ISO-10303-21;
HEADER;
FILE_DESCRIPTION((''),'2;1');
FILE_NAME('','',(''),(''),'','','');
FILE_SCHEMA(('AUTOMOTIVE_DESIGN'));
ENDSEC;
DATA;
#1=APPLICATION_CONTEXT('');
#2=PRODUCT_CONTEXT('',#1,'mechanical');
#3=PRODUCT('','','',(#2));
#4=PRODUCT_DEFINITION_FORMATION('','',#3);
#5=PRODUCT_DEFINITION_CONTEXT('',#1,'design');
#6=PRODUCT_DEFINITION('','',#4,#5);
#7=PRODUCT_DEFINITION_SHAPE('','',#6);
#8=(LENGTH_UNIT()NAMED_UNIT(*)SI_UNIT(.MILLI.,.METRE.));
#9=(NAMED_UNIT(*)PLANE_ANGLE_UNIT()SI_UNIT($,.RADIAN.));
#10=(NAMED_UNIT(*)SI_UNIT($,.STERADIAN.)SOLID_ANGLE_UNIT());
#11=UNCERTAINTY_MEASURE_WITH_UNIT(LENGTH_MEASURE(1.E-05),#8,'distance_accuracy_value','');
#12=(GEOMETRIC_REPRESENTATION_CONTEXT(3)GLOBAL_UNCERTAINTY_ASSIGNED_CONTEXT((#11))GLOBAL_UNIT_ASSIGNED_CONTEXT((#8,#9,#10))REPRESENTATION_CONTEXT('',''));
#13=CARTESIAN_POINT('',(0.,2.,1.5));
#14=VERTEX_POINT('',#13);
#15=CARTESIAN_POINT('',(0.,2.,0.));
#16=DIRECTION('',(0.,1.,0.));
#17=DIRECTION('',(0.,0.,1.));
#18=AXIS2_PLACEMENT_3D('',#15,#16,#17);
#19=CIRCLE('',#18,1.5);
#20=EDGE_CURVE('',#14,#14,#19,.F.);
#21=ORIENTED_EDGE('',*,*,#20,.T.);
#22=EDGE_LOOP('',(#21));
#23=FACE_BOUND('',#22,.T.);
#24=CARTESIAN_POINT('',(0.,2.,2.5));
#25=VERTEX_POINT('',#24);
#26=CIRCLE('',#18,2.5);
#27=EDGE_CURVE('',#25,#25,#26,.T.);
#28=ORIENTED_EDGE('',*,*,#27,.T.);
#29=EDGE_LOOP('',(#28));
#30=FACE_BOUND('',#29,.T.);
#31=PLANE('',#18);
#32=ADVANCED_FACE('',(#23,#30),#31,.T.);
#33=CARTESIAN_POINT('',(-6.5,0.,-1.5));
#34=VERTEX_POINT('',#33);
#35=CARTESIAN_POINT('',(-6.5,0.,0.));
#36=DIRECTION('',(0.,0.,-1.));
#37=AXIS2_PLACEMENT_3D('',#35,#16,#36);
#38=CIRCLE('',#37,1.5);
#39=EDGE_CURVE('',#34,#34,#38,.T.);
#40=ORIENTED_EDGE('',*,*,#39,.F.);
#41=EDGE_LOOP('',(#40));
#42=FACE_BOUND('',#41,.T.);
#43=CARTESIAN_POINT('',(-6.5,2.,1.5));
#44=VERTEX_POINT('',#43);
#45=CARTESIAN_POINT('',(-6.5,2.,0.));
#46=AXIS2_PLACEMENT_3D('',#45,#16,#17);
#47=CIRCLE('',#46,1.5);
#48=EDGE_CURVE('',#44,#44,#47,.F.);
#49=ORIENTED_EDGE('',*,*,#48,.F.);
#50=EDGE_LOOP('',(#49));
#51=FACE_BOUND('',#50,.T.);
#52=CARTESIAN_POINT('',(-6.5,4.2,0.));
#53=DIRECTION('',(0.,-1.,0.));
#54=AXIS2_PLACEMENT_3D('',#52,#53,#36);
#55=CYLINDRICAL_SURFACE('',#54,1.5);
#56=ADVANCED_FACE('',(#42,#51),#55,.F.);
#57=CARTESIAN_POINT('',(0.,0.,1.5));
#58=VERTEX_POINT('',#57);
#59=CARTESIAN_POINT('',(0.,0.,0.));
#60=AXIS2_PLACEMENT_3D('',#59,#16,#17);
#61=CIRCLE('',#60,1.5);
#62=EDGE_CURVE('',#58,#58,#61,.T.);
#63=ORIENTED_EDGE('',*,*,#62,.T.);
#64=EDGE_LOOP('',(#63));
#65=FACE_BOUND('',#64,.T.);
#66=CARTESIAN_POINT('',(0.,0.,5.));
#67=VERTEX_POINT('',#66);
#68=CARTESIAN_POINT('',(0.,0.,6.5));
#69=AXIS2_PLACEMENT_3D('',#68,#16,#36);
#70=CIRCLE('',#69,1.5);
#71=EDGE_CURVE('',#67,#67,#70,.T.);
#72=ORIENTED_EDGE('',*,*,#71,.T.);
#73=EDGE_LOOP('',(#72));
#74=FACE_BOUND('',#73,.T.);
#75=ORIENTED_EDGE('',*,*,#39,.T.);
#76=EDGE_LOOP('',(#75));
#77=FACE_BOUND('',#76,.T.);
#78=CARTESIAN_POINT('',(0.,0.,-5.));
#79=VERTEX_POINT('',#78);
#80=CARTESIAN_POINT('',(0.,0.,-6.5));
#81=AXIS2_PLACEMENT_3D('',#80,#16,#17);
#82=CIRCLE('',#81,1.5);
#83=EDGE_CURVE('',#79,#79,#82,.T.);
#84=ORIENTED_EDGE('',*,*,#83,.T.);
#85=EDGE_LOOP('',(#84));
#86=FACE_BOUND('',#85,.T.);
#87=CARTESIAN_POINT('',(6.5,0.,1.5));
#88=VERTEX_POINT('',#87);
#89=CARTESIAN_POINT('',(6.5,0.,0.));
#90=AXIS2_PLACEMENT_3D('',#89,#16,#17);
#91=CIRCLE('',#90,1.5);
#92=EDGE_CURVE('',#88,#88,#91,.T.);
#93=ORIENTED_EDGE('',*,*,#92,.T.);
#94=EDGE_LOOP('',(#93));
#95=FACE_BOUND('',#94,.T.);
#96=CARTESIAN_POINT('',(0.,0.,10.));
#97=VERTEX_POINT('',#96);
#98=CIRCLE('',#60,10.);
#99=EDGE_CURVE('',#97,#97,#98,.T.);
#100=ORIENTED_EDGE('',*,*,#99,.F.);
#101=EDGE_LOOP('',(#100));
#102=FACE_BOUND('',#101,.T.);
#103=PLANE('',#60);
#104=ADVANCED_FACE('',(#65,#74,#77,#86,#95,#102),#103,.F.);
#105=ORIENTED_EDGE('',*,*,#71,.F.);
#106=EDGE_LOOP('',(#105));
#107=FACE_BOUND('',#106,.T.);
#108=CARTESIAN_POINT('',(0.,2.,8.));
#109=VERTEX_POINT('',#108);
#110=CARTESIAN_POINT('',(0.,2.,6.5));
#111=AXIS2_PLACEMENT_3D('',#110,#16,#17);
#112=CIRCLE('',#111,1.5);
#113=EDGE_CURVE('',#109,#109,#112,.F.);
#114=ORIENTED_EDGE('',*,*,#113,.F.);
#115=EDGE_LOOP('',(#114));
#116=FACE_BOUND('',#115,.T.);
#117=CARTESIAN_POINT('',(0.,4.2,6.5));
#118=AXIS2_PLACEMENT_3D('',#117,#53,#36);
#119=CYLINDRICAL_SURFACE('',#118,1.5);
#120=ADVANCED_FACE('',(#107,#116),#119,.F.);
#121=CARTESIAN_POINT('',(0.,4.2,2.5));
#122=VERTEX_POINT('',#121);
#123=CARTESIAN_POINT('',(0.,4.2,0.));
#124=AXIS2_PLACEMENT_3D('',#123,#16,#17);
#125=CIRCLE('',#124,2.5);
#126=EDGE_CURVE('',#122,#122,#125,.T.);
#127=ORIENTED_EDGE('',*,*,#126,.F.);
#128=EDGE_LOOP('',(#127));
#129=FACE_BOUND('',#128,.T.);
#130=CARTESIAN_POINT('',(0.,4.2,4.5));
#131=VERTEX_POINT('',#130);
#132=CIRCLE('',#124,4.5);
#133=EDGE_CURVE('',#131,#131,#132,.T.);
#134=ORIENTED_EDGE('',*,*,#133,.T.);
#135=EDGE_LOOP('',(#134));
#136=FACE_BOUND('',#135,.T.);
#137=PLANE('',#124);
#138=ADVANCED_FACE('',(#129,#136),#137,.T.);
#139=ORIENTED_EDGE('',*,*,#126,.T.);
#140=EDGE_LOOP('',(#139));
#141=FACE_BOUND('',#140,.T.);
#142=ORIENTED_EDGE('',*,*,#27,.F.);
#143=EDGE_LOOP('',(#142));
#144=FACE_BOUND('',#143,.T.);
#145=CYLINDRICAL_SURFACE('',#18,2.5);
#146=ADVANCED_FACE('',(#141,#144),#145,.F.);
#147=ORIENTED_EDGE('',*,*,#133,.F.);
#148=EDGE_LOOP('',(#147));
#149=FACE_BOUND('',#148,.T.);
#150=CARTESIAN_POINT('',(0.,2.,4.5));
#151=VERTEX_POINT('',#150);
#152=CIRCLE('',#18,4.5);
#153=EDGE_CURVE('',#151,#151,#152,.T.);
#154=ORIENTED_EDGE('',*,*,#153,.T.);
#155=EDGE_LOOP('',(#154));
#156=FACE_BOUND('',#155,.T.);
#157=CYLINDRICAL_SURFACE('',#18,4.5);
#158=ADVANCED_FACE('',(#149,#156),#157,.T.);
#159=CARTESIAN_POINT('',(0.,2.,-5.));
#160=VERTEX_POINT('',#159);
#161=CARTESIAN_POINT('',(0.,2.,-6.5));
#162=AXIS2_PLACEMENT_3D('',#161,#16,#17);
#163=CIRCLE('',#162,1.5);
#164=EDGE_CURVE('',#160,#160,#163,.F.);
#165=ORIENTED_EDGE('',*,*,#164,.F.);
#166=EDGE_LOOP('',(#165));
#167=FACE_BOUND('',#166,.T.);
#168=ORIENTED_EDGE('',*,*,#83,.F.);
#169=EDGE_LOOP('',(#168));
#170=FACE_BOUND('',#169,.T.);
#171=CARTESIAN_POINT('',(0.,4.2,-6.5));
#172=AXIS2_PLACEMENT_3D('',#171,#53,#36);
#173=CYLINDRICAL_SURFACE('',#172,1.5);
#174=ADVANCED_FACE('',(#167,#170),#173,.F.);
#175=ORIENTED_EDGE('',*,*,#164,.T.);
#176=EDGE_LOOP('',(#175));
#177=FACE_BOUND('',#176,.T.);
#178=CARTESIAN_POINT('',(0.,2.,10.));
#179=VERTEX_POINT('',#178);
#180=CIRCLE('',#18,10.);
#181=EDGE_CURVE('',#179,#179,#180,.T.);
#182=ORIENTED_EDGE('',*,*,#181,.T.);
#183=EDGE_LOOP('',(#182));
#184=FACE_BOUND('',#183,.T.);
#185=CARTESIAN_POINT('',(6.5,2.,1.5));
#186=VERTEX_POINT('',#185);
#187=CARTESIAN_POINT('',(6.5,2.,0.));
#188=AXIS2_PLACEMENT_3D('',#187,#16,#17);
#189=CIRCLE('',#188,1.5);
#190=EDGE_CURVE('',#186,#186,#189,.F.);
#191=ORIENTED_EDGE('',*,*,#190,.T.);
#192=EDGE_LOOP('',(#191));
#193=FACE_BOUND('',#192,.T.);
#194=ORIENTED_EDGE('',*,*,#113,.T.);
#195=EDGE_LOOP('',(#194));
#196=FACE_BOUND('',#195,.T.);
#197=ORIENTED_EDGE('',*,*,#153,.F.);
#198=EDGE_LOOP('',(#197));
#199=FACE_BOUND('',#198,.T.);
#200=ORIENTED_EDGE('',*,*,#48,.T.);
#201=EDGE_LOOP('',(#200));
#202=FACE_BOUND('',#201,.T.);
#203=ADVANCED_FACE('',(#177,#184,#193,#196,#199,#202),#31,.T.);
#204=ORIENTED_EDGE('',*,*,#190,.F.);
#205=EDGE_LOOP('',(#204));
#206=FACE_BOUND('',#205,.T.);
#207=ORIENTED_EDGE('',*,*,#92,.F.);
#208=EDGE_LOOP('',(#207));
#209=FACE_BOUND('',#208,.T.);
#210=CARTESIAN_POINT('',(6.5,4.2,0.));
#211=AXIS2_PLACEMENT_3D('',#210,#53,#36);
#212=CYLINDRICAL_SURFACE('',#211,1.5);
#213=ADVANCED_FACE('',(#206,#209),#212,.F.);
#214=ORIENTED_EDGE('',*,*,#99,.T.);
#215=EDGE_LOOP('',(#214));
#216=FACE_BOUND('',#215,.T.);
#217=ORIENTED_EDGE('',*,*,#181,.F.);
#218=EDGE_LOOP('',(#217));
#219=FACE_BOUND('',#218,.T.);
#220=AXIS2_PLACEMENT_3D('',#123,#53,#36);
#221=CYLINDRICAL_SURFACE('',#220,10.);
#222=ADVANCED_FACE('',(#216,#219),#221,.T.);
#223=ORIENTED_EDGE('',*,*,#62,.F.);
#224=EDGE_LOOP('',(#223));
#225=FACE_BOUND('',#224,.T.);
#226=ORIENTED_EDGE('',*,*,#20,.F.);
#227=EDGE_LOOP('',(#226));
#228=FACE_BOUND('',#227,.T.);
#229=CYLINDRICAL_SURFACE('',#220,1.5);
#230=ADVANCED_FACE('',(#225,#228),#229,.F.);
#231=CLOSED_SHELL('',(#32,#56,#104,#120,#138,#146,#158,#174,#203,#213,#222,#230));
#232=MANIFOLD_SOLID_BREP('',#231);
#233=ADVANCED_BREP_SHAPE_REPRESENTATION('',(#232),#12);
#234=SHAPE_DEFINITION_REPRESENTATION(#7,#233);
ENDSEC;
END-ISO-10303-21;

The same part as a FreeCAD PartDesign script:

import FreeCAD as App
import Part
import Sketcher

V = App.Vector

doc = App.newDocument("Part")
body = doc.addObject("PartDesign::Body", "Body")

# Sketch on XZ plane
sketch1 = body.newObject("Sketcher::SketchObject", "Sketch")
sketch1.AttachmentSupport = (doc.getObject("XZ_Plane"), [""])
sketch1.MapMode = "FlatFace"
sketch1.addGeometry(Part.Circle(V(0, 0, 0), V(0, 0, 1), 10), False)
sketch1.addGeometry(Part.Circle(V(-6.5, 0, 0), V(0, 0, 1), 1.5), False)
sketch1.addGeometry(Part.Circle(V(0, 6.5, 0), V(0, 0, 1), 1.5), False)
sketch1.addGeometry(Part.Circle(V(0, 0, 0), V(0, 0, 1), 1.5), False)
sketch1.addGeometry(Part.Circle(V(6.5, 0, 0), V(0, 0, 1), 1.5), False)
sketch1.addGeometry(Part.Circle(V(0, -6.5, 0), V(0, 0, 1), 1.5), False)
sketch1.addConstraint(Sketcher.Constraint("Coincident", 0, 3, -1, 1))
sketch1.addConstraint(Sketcher.Constraint("Coincident", 3, 3, -1, 1))
sketch1.addConstraint(Sketcher.Constraint("Equal", 1, 2))
sketch1.addConstraint(Sketcher.Constraint("Equal", 2, 3))
sketch1.addConstraint(Sketcher.Constraint("Equal", 3, 4))
sketch1.addConstraint(Sketcher.Constraint("Equal", 4, 5))
sketch1.addConstraint(Sketcher.Constraint("Symmetric", 1, 3, 4, 3, -1, 1))
sketch1.addConstraint(Sketcher.Constraint("Symmetric", 2, 3, 5, 3, -1, 1))
sketch1.addConstraint(Sketcher.Constraint("PointOnObject", 1, 3, -1))
sketch1.addConstraint(Sketcher.Constraint("PointOnObject", 2, 3, -2))
sketch1.addConstraint(Sketcher.Constraint("Diameter", 0, 20.0))
sketch1.addConstraint(Sketcher.Constraint("Diameter", 1, 3.0))
sketch1.addConstraint(Sketcher.Constraint("DistanceX", 1, 3, 4, 3, 13.0))
sketch1.addConstraint(Sketcher.Constraint("DistanceY", 5, 3, 2, 3, 13.0))
pad1 = body.newObject("PartDesign::Pad", "Pad")
pad1.Profile = sketch1
pad1.Length = 4.2
pad1.Reversed = True

# Sketch on XZ plane
sketch2 = body.newObject("Sketcher::SketchObject", "Sketch001")
sketch2.AttachmentSupport = (doc.getObject("XZ_Plane"), [""])
sketch2.MapMode = "FlatFace"
sketch2.AttachmentOffset = App.Placement(V(0, 0, -4.2), App.Rotation())
sketch2.addGeometry(Part.Circle(V(0, 0, 0), V(0, 0, 1), 10), False)
sketch2.addGeometry(Part.Circle(V(-6.5, 0, 0), V(0, 0, 1), 1.5), False)
sketch2.addGeometry(Part.Circle(V(0, 6.5, 0), V(0, 0, 1), 1.5), False)
sketch2.addGeometry(Part.Circle(V(0, 0, 0), V(0, 0, 1), 4.5), False)
sketch2.addGeometry(Part.Circle(V(6.5, 0, 0), V(0, 0, 1), 1.5), False)
sketch2.addGeometry(Part.Circle(V(0, -6.5, 0), V(0, 0, 1), 1.5), False)
sketch2.addGeometry(Part.Circle(V(0, 0, 0), V(0, 0, 1), 2.5), False)
sketch2.addGeometry(Part.Circle(V(0, 0, 0), V(0, 0, 1), 1.5), False)
sketch2.addConstraint(Sketcher.Constraint("Coincident", 0, 3, -1, 1))
sketch2.addConstraint(Sketcher.Constraint("Coincident", 3, 3, -1, 1))
sketch2.addConstraint(Sketcher.Constraint("Coincident", 6, 3, -1, 1))
sketch2.addConstraint(Sketcher.Constraint("Coincident", 7, 3, -1, 1))
sketch2.addConstraint(Sketcher.Constraint("Equal", 1, 2))
sketch2.addConstraint(Sketcher.Constraint("Equal", 2, 4))
sketch2.addConstraint(Sketcher.Constraint("Equal", 4, 5))
sketch2.addConstraint(Sketcher.Constraint("Equal", 5, 7))
sketch2.addConstraint(Sketcher.Constraint("Symmetric", 1, 3, 4, 3, -1, 1))
sketch2.addConstraint(Sketcher.Constraint("Symmetric", 2, 3, 5, 3, -1, 1))
sketch2.addConstraint(Sketcher.Constraint("PointOnObject", 1, 3, -1))
sketch2.addConstraint(Sketcher.Constraint("PointOnObject", 2, 3, -2))
sketch2.addConstraint(Sketcher.Constraint("Diameter", 0, 20.0))
sketch2.addConstraint(Sketcher.Constraint("Diameter", 1, 3.0))
sketch2.addConstraint(Sketcher.Constraint("Diameter", 3, 9.0))
sketch2.addConstraint(Sketcher.Constraint("Diameter", 6, 5.0))
sketch2.addConstraint(Sketcher.Constraint("DistanceX", 1, 3, 4, 3, 13.0))
sketch2.addConstraint(Sketcher.Constraint("DistanceY", 5, 3, 2, 3, 13.0))
pocket1 = body.newObject("PartDesign::Pocket", "Pocket")
pocket1.Profile = sketch2
pocket1.Length = 2.2
pocket1.Reversed = True

doc.recompute()
